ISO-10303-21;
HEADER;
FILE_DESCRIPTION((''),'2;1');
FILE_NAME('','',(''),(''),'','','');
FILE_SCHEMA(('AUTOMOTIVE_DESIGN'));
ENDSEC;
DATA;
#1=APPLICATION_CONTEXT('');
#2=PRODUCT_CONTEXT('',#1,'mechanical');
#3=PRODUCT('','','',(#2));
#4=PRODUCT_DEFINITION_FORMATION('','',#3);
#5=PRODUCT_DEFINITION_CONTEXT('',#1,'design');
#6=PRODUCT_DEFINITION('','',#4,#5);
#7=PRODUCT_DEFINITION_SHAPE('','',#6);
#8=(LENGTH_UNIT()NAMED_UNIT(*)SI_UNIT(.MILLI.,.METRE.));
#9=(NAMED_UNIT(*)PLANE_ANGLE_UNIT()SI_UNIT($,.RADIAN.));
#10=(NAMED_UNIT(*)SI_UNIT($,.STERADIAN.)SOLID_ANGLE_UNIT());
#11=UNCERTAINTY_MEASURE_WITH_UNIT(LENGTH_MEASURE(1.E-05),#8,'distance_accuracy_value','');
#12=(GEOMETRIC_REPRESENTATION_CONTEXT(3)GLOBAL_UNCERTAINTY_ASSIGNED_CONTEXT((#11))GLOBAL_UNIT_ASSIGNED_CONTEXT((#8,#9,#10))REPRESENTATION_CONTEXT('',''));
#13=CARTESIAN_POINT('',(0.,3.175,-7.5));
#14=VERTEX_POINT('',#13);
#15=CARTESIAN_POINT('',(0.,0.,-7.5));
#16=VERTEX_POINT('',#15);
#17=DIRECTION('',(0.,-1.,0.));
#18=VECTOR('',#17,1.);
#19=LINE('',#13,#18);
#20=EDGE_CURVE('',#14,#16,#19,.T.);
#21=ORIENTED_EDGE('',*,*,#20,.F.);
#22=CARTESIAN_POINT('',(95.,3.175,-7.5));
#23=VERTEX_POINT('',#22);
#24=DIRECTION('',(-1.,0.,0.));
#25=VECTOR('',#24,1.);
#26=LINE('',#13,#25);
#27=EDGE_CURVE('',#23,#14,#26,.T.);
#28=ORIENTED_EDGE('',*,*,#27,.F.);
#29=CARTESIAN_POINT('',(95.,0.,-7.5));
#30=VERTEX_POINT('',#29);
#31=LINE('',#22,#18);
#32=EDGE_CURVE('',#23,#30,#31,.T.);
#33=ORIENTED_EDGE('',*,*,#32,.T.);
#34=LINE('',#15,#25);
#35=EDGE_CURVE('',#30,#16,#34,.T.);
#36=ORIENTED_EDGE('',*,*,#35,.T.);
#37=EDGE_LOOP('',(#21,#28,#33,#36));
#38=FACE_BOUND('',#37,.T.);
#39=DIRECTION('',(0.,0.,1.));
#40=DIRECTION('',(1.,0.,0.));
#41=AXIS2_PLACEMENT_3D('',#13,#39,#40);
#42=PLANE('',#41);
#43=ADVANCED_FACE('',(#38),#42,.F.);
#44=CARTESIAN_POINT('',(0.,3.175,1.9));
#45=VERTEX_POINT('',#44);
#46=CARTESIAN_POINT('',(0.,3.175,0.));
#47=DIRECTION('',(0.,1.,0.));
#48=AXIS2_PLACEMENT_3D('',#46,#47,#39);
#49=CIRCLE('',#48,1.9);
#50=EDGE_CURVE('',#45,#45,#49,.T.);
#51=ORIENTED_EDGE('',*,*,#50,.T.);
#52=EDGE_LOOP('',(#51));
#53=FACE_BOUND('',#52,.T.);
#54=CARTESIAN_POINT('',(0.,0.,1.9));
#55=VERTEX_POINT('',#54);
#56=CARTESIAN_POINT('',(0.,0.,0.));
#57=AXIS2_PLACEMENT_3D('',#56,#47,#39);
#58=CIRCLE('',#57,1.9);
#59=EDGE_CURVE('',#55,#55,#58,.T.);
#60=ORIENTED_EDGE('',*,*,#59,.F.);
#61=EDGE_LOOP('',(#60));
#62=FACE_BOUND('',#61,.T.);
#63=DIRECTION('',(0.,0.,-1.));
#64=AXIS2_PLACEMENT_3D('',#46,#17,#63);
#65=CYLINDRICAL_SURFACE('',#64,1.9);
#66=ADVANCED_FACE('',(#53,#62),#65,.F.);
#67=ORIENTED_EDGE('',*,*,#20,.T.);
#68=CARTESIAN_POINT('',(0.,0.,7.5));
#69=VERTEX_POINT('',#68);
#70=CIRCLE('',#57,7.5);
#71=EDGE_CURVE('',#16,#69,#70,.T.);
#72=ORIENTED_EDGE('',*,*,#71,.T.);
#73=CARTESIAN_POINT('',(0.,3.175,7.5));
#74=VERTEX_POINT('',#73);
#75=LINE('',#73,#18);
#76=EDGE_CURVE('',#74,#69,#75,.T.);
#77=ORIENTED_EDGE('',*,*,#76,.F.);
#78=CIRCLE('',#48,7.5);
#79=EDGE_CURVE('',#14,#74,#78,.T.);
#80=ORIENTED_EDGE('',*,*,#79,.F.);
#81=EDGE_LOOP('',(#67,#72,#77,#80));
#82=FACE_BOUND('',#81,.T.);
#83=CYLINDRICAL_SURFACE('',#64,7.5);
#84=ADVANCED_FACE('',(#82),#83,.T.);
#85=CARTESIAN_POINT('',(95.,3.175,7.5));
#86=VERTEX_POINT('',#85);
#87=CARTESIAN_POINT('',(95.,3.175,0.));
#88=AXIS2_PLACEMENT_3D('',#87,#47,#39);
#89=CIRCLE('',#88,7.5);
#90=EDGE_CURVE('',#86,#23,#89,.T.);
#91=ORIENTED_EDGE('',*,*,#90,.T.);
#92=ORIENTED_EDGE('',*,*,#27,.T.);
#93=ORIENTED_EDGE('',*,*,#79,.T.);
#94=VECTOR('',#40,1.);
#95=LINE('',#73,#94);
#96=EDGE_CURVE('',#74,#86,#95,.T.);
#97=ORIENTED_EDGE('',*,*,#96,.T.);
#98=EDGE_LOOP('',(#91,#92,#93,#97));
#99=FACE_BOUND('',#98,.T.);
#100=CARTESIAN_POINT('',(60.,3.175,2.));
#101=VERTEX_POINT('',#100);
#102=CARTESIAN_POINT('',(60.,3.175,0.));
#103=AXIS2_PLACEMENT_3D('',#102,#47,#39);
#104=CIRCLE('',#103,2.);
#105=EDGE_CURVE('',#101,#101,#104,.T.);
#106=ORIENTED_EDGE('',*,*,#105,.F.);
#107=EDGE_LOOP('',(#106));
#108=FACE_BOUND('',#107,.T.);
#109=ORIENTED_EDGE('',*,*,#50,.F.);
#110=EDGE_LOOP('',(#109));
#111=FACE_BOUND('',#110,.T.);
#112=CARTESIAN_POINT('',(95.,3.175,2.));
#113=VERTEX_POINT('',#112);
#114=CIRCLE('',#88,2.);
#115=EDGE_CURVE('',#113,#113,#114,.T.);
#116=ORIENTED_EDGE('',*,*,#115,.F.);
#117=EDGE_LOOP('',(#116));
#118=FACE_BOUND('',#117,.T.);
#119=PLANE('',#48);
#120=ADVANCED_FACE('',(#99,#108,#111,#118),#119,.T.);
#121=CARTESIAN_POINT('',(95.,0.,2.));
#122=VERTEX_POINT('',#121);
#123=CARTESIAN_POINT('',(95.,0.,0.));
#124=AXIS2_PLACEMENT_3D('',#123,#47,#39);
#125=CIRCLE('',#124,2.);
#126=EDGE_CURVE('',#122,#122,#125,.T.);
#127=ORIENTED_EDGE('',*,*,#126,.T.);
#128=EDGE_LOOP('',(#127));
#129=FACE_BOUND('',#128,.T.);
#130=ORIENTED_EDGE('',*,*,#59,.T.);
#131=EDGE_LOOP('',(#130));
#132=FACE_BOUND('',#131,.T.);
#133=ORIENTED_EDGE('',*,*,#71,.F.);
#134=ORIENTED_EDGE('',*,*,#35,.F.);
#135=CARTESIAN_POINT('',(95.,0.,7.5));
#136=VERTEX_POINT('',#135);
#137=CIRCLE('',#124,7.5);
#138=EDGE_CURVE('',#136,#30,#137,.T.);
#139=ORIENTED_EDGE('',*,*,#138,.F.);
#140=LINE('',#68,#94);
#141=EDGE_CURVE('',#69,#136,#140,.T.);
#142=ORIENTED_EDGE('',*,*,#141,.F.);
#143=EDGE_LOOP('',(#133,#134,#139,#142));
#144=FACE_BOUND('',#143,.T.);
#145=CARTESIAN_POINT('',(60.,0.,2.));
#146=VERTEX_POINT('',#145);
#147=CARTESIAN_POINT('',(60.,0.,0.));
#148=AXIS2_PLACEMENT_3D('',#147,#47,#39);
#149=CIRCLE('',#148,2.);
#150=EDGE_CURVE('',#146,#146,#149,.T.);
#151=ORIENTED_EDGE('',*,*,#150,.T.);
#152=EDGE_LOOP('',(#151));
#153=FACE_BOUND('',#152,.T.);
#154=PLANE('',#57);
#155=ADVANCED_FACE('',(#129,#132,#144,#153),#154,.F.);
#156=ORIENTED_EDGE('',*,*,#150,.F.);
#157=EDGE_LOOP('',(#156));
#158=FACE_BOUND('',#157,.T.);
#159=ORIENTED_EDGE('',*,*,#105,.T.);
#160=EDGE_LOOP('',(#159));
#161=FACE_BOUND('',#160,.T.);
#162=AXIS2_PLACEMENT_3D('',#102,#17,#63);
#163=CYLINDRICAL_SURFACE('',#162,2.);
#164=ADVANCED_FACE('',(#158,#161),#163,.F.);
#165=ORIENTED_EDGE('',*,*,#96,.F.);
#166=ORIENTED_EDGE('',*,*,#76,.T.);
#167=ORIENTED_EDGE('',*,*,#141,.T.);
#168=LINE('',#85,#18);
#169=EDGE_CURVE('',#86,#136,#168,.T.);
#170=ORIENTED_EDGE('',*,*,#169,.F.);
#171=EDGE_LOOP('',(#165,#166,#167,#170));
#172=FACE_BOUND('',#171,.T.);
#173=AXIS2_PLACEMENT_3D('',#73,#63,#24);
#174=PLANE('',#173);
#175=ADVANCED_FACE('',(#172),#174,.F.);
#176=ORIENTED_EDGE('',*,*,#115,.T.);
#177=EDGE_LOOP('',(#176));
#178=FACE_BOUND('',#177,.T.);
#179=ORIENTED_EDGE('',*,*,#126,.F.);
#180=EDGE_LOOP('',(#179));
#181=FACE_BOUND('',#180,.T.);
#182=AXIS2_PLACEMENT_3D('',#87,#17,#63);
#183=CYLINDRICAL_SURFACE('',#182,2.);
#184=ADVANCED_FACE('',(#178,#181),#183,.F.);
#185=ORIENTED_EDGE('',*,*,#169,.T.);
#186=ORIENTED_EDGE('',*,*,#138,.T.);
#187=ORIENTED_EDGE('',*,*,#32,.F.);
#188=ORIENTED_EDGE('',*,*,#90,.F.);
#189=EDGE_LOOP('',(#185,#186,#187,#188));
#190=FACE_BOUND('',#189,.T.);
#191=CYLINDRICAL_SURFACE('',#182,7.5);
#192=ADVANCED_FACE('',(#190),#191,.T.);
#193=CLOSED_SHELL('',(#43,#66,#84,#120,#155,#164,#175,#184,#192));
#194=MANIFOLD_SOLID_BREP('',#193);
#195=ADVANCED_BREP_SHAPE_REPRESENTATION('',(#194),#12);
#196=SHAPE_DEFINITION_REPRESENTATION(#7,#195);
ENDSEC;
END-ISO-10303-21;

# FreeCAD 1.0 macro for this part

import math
import FreeCAD as App
import Part
import Sketcher

V = App.Vector

doc = App.newDocument("Part")
body = doc.addObject("PartDesign::Body", "Body")

# Sketch on XZ plane
sketch1 = body.newObject("Sketcher::SketchObject", "Sketch")
sketch1.AttachmentSupport = (doc.getObject("XZ_Plane"), [""])
sketch1.MapMode = "FlatFace"
sketch1.addGeometry([
    Part.LineSegment(V(95, -7.5, 0), V(0, -7.5, 0)),  # 0
    Part.ArcOfCircle(Part.Circle(V(0, 0, 0), V(0, 0, 1), 7.5), math.radians(90), math.radians(270)),  # 1
    Part.LineSegment(V(0, 7.5, 0), V(95, 7.5, 0)),  # 2
    Part.ArcOfCircle(Part.Circle(V(95, 0, 0), V(0, 0, 1), 7.5), math.radians(-90), math.radians(90)),  # 3
    Part.Circle(V(95, 0, 0), V(0, 0, 1), 2),  # 4
    Part.Circle(V(60, 0, 0), V(0, 0, 1), 2),  # 5
    Part.Circle(V(0, 0, 0), V(0, 0, 1), 1.9),  # 6
], False)
sketch1.addConstraint([
    Sketcher.Constraint("Tangent", 0, 2, 1, 2),
    Sketcher.Constraint("Tangent", 1, 1, 2, 1),
    Sketcher.Constraint("Tangent", 2, 2, 3, 2),
    Sketcher.Constraint("Tangent", 3, 1, 0, 1),
    Sketcher.Constraint("Horizontal", 0),
    Sketcher.Constraint("Horizontal", 2),
    Sketcher.Constraint("Coincident", 1, 3, -1, 1),
    Sketcher.Constraint("Coincident", 6, 3, -1, 1),
    Sketcher.Constraint("Coincident", 4, 3, 3, 3),
    Sketcher.Constraint("Equal", 4, 5),
    Sketcher.Constraint("PointOnObject", 5, 3, -1),
    Sketcher.Constraint("Diameter", 4, 4.0),
    Sketcher.Constraint("Diameter", 6, 3.8),
    Sketcher.Constraint("Radius", 1, 7.5),
    Sketcher.Constraint("DistanceX", 0, 2, 0, 1, 95.0),
    Sketcher.Constraint("DistanceX", -1, 1, 5, 3, 60.0),
])
pad1 = body.newObject("PartDesign::Pad", "Pad")
pad1.Profile = sketch1
pad1.Length = 3.175
pad1.Reversed = True

doc.recompute()
